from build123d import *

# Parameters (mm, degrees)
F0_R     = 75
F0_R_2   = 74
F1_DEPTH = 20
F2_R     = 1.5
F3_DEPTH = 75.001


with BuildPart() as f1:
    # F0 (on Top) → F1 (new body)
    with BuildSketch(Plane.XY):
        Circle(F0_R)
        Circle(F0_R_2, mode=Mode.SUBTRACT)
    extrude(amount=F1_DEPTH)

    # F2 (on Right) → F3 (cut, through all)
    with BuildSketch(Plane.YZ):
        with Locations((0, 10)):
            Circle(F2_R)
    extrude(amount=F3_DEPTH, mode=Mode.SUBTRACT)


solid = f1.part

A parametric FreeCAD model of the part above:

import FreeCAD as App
import Part
import Sketcher

V = App.Vector
Q = App.Units.Quantity

doc = App.newDocument("Part")
params = doc.addObject("Spreadsheet::Sheet", "Params")
for row, (alias, value) in enumerate([
    ("sketch1_diameter", "150 mm"),
    ("sketch1_diameter2", "148 mm"),
    ("pad1_length", "20 mm"),
    ("sketch2_diameter", "3 mm"),
], start=1):
    params.set(f"A{row}", alias)
    params.set(f"B{row}", "=" + value)
    params.setAlias(f"B{row}", alias)

body = doc.addObject("PartDesign::Body", "Body")

sketch1 = body.newObject("Sketcher::SketchObject", "Sketch")
sketch1.AttachmentSupport = (doc.getObject("XY_Plane"), [""])
sketch1.MapMode = "FlatFace"
sketch1.addGeometry([
    Part.Circle(V(0, 0, 0), V(0, 0, 1), 75),
    Part.Circle(V(0, 0, 0), V(0, 0, 1), 74),
], False)
sketch1.addConstraint([
    Sketcher.Constraint("Coincident", 0, 3, -1, 1),
    Sketcher.Constraint("Coincident", 1, 3, -1, 1),
    Sketcher.Constraint("Diameter", 0, Q("150 mm")),
    Sketcher.Constraint("Diameter", 1, Q("148 mm")),
])
sketch1.setExpression("Constraints[2]", "Params.sketch1_diameter")
sketch1.setExpression("Constraints[3]", "Params.sketch1_diameter2")
pad1 = body.newObject("PartDesign::Pad", "Pad")
pad1.Profile = sketch1
pad1.setExpression("Length", "Params.pad1_length")

sketch2 = body.newObject("Sketcher::SketchObject", "Sketch001")
sketch2.AttachmentSupport = (doc.getObject("YZ_Plane"), [""])
sketch2.MapMode = "FlatFace"
sketch2.addGeometry(Part.Circle(V(0, 10, 0), V(0, 0, 1), 1.5), False)
sketch2.addConstraint([
    Sketcher.Constraint("PointOnObject", 0, 3, -2),
    Sketcher.Constraint("Diameter", 0, Q("3 mm")),
    Sketcher.Constraint("DistanceY", -1, 1, 0, 3, Q("10 mm")),
])
sketch2.setExpression("Constraints[1]", "Params.sketch2_diameter")
pocket1 = body.newObject("PartDesign::Pocket", "Pocket")
pocket1.Profile = sketch2
pocket1.Type = "ThroughAll"
pocket1.Reversed = True

doc.recompute()
